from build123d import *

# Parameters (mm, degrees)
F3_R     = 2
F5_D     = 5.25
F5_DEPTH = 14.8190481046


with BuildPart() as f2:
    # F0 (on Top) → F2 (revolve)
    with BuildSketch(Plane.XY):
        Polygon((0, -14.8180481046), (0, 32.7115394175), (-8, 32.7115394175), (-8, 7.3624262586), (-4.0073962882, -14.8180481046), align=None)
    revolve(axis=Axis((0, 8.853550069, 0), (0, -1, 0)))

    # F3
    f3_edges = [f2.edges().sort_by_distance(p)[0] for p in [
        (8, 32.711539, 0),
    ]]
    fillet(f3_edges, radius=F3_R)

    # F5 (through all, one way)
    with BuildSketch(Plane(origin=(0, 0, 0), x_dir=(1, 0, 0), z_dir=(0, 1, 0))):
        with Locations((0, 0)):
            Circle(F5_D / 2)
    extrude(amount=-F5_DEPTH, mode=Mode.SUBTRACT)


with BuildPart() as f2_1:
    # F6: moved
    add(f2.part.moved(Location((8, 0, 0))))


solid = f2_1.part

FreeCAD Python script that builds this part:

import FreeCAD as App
import Part
import Sketcher
from FreeCAD import Vector


def edges_at(feature, points):
    """Names of the edges that pass closest to the given points."""
    edges = feature.Shape.Edges
    near = lambda p: min(range(len(edges)), key=lambda i: edges[i].distToShape(Part.Vertex(*p))[0])
    return sorted({f"Edge{near(p) + 1}" for p in points})


def add_polygon(sketch, points):
    """Adds a closed chain of lines whose ends are joined by coincident constraints."""
    first, n = sketch.GeometryCount, len(points)
    for a, b in zip(points, points[1:] + points[:1]):
        sketch.addGeometry(Part.LineSegment(App.Vector(*a, 0), App.Vector(*b, 0)), False)
    for i in range(n):
        sketch.addConstraint(Sketcher.Constraint("Coincident", first + i, 2, first + (i + 1) % n, 1))

doc = App.newDocument("Part")
body = doc.addObject("PartDesign::Body", "Body")

# Sketch on XY plane
sketch1 = body.newObject("Sketcher::SketchObject", "Sketch")
sketch1.AttachmentSupport = (doc.getObject("XY_Plane"), [""])
sketch1.MapMode = "FlatFace"
add_polygon(sketch1, [(0, -14.8), (0, 32.7), (-8, 32.7), (-8, 7.4), (-4, -14.8)])  # lines 0-4
sketch1.addConstraint([
    Sketcher.Constraint("Vertical", 0),
    Sketcher.Constraint("Horizontal", 1),
    Sketcher.Constraint("Vertical", 2),
    Sketcher.Constraint("Horizontal", 4),
    Sketcher.Constraint("PointOnObject", 0, 2, -2),
    Sketcher.Constraint("DistanceX", 1, 2, 1, 1, 8.0),
    Sketcher.Constraint("DistanceX", 4, 1, 4, 2, 4.007396),
    Sketcher.Constraint("DistanceY", 0, 1, 0, 2, 47.529588),
    Sketcher.Constraint("DistanceY", 2, 2, 2, 1, 25.349113),
    Sketcher.Constraint("DistanceY", -1, 1, 0, 2, 32.711539),
])
revolution = body.newObject("PartDesign::Revolution", "Revolution")
revolution.Profile = sketch1
revolution.ReferenceAxis = (sketch1, ["V_Axis"])
revolution.Angle = 360
doc.recompute()

fillet = body.newObject("PartDesign::Fillet", "Fillet")
fillet.Base = (revolution, edges_at(revolution, [(8, 32.712, 0)]))
fillet.Radius = 2

# Sketch on XZ plane
sketch2 = body.newObject("Sketcher::SketchObject", "Sketch001")
sketch2.AttachmentSupport = (doc.getObject("XZ_Plane"), [""])
sketch2.MapMode = "FlatFace"
sketch2.addGeometry(Part.Circle(Vector(0, 0, 0), Vector(0, 0, 1), 2.6), False)
sketch2.addConstraint([
    Sketcher.Constraint("Coincident", 0, 3, -1, 1),
    Sketcher.Constraint("Diameter", 0, 5.25),
])
pocket1 = body.newObject("PartDesign::Pocket", "Pocket")
pocket1.Profile = sketch2
pocket1.Type = "ThroughAll"
pocket1.Reversed = True
body2 = doc.addObject("PartDesign::Body", "Body001")
doc.recompute()

body.Placement = App.Placement(Vector(8, 0, 0), App.Rotation(Vector(0, 0, 1), 0))
boolean = body2.newObject("PartDesign::Boolean", "Boolean")
boolean.Type = "Fuse"
boolean.addObjects([body])

doc.recompute()
